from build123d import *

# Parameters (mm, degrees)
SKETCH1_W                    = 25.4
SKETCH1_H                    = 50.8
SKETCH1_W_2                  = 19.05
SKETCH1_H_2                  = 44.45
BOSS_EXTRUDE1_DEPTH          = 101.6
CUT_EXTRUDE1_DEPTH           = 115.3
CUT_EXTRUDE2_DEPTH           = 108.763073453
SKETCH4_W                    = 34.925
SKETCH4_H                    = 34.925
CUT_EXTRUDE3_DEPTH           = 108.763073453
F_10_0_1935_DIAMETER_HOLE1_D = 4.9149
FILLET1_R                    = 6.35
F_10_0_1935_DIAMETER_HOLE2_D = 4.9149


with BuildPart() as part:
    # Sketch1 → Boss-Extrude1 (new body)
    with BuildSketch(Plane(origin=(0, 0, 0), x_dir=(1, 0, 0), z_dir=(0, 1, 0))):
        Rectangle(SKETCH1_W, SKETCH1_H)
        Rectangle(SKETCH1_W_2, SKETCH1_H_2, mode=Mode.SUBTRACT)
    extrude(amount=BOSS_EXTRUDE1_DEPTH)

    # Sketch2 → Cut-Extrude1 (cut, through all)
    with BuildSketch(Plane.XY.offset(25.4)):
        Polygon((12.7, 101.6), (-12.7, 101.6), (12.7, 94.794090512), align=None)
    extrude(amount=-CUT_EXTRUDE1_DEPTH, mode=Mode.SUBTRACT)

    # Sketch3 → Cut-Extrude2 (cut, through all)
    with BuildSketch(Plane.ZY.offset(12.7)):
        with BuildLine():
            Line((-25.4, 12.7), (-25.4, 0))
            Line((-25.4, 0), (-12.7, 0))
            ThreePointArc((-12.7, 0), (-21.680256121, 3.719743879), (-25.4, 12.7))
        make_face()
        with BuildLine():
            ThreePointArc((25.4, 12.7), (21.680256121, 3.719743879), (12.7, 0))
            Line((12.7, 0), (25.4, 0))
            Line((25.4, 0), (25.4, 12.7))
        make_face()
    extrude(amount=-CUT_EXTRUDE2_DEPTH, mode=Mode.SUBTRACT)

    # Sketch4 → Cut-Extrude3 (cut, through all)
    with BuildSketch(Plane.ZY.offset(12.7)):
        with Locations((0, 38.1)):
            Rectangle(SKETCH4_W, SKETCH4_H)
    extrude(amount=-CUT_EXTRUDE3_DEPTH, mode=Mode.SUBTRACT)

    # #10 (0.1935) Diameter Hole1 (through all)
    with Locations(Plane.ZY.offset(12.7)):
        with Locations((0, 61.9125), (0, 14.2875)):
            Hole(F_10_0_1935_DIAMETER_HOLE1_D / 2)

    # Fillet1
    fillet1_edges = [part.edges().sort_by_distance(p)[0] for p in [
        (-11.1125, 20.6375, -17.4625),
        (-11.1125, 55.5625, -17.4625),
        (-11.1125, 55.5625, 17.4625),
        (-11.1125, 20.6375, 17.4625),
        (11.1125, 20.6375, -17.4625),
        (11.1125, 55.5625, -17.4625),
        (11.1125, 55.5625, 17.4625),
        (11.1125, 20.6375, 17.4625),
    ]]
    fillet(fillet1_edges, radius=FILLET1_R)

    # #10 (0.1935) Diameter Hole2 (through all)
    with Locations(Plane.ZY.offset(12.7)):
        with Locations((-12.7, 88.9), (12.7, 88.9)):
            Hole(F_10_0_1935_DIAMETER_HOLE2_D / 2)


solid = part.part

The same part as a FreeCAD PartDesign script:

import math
import FreeCAD as App
import Part
import Sketcher

V = App.Vector
Q = App.Units.Quantity


def edges_at(feature, points):
    """Names of the edges that pass closest to the given points."""
    edges = feature.Shape.Edges
    near = lambda p: min(range(len(edges)), key=lambda i: edges[i].distToShape(Part.Vertex(*p))[0])
    return sorted({f"Edge{near(p) + 1}" for p in points})


def add_polygon(sketch, points):
    """Adds a closed chain of lines whose ends are joined by coincident constraints."""
    first, n = sketch.GeometryCount, len(points)
    for a, b in zip(points, points[1:] + points[:1]):
        sketch.addGeometry(Part.LineSegment(App.Vector(*a, 0), App.Vector(*b, 0)), False)
    for i in range(n):
        sketch.addConstraint(Sketcher.Constraint("Coincident", first + i, 2, first + (i + 1) % n, 1))

doc = App.newDocument("Part")
params = doc.addObject("Spreadsheet::Sheet", "Params")
for row, (alias, value) in enumerate([
    ("sketch1_width", "1 in"),
    ("sketch1_height", "2 in"),
    ("sketch1_width2", "0.75 in"),
    ("sketch1_height2", "1.75 in"),
    ("pad1_length", "4 in"),
    ("sketch2_width", "1 in"),
    ("sketch3_radius", "0.5 in"),
    ("sketch4_width", "1.375 in"),
    ("hole_diameter", "0.1935 in"),
    ("fillet_radius", "0.25 in"),
    ("hole2_diameter", "0.1935 in"),
], start=1):
    params.set(f"A{row}", alias)
    params.set(f"B{row}", "=" + value)
    params.setAlias(f"B{row}", alias)

body = doc.addObject("PartDesign::Body", "Body")

sketch1 = body.newObject("Sketcher::SketchObject", "Sketch")
sketch1.AttachmentSupport = (doc.getObject("XZ_Plane"), [""])
sketch1.MapMode = "FlatFace"
add_polygon(sketch1, [(-13, -25), (-13, 25), (13, 25), (13, -25)])
add_polygon(sketch1, [(10, 22), (-10, 22), (-10, -22), (10, -22)])
sketch1.addConstraint([
    Sketcher.Constraint("Vertical", 0),
    Sketcher.Constraint("Horizontal", 1),
    Sketcher.Constraint("Vertical", 2),
    Sketcher.Constraint("Horizontal", 3),
    Sketcher.Constraint("Horizontal", 4),
    Sketcher.Constraint("Vertical", 5),
    Sketcher.Constraint("Horizontal", 6),
    Sketcher.Constraint("Vertical", 7),
    Sketcher.Constraint("Symmetric", 0, 2, 2, 2, -1, 1),
    Sketcher.Constraint("Symmetric", 4, 2, 6, 2, -1, 1),
    Sketcher.Constraint("DistanceX", 1, 1, 1, 2, Q("1 in")),
    Sketcher.Constraint("DistanceY", 0, 1, 0, 2, Q("2 in")),
    Sketcher.Constraint("DistanceX", 4, 2, 4, 1, Q("0.75 in")),
    Sketcher.Constraint("DistanceY", 5, 2, 5, 1, Q("1.75 in")),
])
sketch1.setExpression("Constraints[18]", "Params.sketch1_width")
sketch1.setExpression("Constraints[19]", "Params.sketch1_height")
sketch1.setExpression("Constraints[20]", "Params.sketch1_width2")
sketch1.setExpression("Constraints[21]", "Params.sketch1_height2")
pad1 = body.newObject("PartDesign::Pad", "Pad")
pad1.Profile = sketch1
pad1.setExpression("Length", "Params.pad1_length")
pad1.Reversed = True

sketch2 = body.newObject("Sketcher::SketchObject", "Sketch001")
sketch2.AttachmentSupport = (doc.getObject("XY_Plane"), [""])
sketch2.MapMode = "FlatFace"
sketch2.AttachmentOffset = App.Placement(V(0, 0, 1 * 25.4), App.Rotation())
add_polygon(sketch2, [(13, 102), (-13, 102), (13, 95)])
sketch2.addConstraint([
    Sketcher.Constraint("Horizontal", 0),
    Sketcher.Constraint("Vertical", 2),
    Sketcher.Constraint("DistanceX", 0, 2, 0, 1, Q("1 in")),
    Sketcher.Constraint("DistanceY", -1, 1, 0, 2, Q("4 in")),
    Sketcher.Constraint("Angle", 1, Q("-15 deg")),
    Sketcher.Constraint("DistanceX", 0, 2, -1, 1, Q("0.5 in")),
])
sketch2.setExpression("Constraints[5]", "Params.sketch2_width")
pocket1 = body.newObject("PartDesign::Pocket", "Pocket")
pocket1.Profile = sketch2
pocket1.Type = "ThroughAll"

sketch3 = body.newObject("Sketcher::SketchObject", "Sketch002")
sketch3.AttachmentSupport = (doc.getObject("YZ_Plane"), [""])
sketch3.MapMode = "FlatFace"
sketch3.AttachmentOffset = App.Placement(V(0, 0, -0.5 * 25.4), App.Rotation())
sketch3.addGeometry([
    Part.LineSegment(V(13, -25, 0), V(0, -25, 0)),
    Part.LineSegment(V(0, -25, 0), V(0, -13, 0)),
    Part.ArcOfCircle(Part.Circle(V(13, -13, 0), V(0, 0, 1), 13), math.radians(180), math.radians(270)),
    Part.ArcOfCircle(Part.Circle(V(13, 13, 0), V(0, 0, 1), 13), math.radians(90), math.radians(180)),
    Part.LineSegment(V(0, 13, 0), V(0, 25, 0)),
    Part.LineSegment(V(0, 25, 0), V(13, 25, 0)),
], False)
sketch3.addConstraint([
    Sketcher.Constraint("Coincident", 0, 2, 1, 1),
    Sketcher.Constraint("Tangent", 1, 2, 2, 1),
    Sketcher.Constraint("Tangent", 2, 2, 0, 1),
    Sketcher.Constraint("Tangent", 3, 2, 4, 1),
    Sketcher.Constraint("Coincident", 4, 2, 5, 1),
    Sketcher.Constraint("Tangent", 5, 2, 3, 1),
    Sketcher.Constraint("Horizontal", 0),
    Sketcher.Constraint("Vertical", 1),
    Sketcher.Constraint("Vertical", 4),
    Sketcher.Constraint("Horizontal", 5),
    Sketcher.Constraint("Equal", 2, 3),
    Sketcher.Constraint("Symmetric", 1, 2, 3, 2, -1, 1),
    Sketcher.Constraint("PointOnObject", 0, 2, -2),
    Sketcher.Constraint("Radius", 2, Q("0.5 in")),
    Sketcher.Constraint("DistanceY", 0, 2, -1, 1, Q("1 in")),
])
sketch3.setExpression("Constraints[13]", "Params.sketch3_radius")
pocket2 = body.newObject("PartDesign::Pocket", "Pocket001")
pocket2.Profile = sketch3
pocket2.Type = "ThroughAll"
pocket2.Reversed = True

sketch4 = body.newObject("Sketcher::SketchObject", "Sketch003")
sketch4.AttachmentSupport = (doc.getObject("YZ_Plane"), [""])
sketch4.MapMode = "FlatFace"
sketch4.AttachmentOffset = App.Placement(V(0, 0, -0.5 * 25.4), App.Rotation())
add_polygon(sketch4, [(56, -17), (21, -17), (21, 17), (56, 17)])
sketch4.addConstraint([
    Sketcher.Constraint("Horizontal", 0),
    Sketcher.Constraint("Vertical", 1),
    Sketcher.Constraint("Horizontal", 2),
    Sketcher.Constraint("Vertical", 3),
    Sketcher.Constraint("Equal", 2, 1),
    Sketcher.Constraint("DistanceX", 0, 2, 0, 1, Q("1.375 in")),
    Sketcher.Constraint("DistanceX", -1, 1, 0, 2, Q("0.8125 in")),
    Sketcher.Constraint("DistanceY", 0, 2, -1, 1, Q("0.6875 in")),
])
sketch4.setExpression("Constraints[9]", "Params.sketch4_width")
pocket3 = body.newObject("PartDesign::Pocket", "Pocket002")
pocket3.Profile = sketch4
pocket3.Type = "ThroughAll"
pocket3.Reversed = True

sketch5 = body.newObject("Sketcher::SketchObject", "Sketch004")
sketch5.AttachmentSupport = (doc.getObject("YZ_Plane"), [""])
sketch5.MapMode = "FlatFace"
sketch5.AttachmentOffset = App.Placement(V(0, 0, -0.5 * 25.4), App.Rotation())
sketch5.addGeometry([
    Part.Circle(V(61.9, 0, 0), V(0, 0, 1), 2.5),
    Part.Circle(V(14.3, 0, 0), V(0, 0, 1), 2.5),
], False)
sketch5.addConstraint([
    Sketcher.Constraint("Equal", 0, 1),
    Sketcher.Constraint("PointOnObject", 0, 3, -1),
    Sketcher.Constraint("PointOnObject", 1, 3, -1),
    Sketcher.Constraint("Diameter", 0, Q("0.1935 in")),
    Sketcher.Constraint("DistanceX", -1, 1, 0, 3, Q("2.4375 in")),
    Sketcher.Constraint("DistanceX", -1, 1, 1, 3, Q("0.5625 in")),
])
doc.recompute()
hole = body.newObject("PartDesign::Hole", "Hole")
hole.Profile = sketch5
hole.ThreadType = "None"
hole.setExpression("Diameter", "Params.hole_diameter")
hole.DepthType = "ThroughAll"
hole.Reversed = True
doc.recompute()

fillet = body.newObject("PartDesign::Fillet", "Fillet")
fillet.Base = (hole, edges_at(hole, [
    (-11.113, 20.637, -17.462),
    (-11.113, 55.562, -17.462),
    (-11.113, 55.562, 17.462),
    (-11.113, 20.637, 17.462),
    (11.113, 20.637, -17.462),
    (11.113, 55.562, -17.462),
    (11.113, 55.562, 17.462),
    (11.113, 20.637, 17.462),
]))
fillet.setExpression("Radius", "Params.fillet_radius")

sketch6 = body.newObject("Sketcher::SketchObject", "Sketch005")
sketch6.AttachmentSupport = (doc.getObject("YZ_Plane"), [""])
sketch6.MapMode = "FlatFace"
sketch6.AttachmentOffset = App.Placement(V(0, 0, -0.5 * 25.4), App.Rotation())
sketch6.addGeometry([
    Part.Circle(V(88.9, -12.7, 0), V(0, 0, 1), 2.5),
    Part.Circle(V(88.9, 12.7, 0), V(0, 0, 1), 2.5),
], False)
sketch6.addConstraint([
    Sketcher.Constraint("Equal", 0, 1),
    Sketcher.Constraint("Symmetric", 0, 3, 1, 3, -1),
    Sketcher.Constraint("DistanceY", 0, 3, 1, 3, Q("1 in")),
    Sketcher.Constraint("Diameter", 0, Q("0.1935 in")),
    Sketcher.Constraint("DistanceX", -1, 1, 0, 3, Q("3.5 in")),
])
doc.recompute()
hole2 = body.newObject("PartDesign::Hole", "Hole001")
hole2.Profile = sketch6
hole2.ThreadType = "None"
hole2.setExpression("Diameter", "Params.hole2_diameter")
hole2.DepthType = "ThroughAll"
hole2.Reversed = True

doc.recompute()
